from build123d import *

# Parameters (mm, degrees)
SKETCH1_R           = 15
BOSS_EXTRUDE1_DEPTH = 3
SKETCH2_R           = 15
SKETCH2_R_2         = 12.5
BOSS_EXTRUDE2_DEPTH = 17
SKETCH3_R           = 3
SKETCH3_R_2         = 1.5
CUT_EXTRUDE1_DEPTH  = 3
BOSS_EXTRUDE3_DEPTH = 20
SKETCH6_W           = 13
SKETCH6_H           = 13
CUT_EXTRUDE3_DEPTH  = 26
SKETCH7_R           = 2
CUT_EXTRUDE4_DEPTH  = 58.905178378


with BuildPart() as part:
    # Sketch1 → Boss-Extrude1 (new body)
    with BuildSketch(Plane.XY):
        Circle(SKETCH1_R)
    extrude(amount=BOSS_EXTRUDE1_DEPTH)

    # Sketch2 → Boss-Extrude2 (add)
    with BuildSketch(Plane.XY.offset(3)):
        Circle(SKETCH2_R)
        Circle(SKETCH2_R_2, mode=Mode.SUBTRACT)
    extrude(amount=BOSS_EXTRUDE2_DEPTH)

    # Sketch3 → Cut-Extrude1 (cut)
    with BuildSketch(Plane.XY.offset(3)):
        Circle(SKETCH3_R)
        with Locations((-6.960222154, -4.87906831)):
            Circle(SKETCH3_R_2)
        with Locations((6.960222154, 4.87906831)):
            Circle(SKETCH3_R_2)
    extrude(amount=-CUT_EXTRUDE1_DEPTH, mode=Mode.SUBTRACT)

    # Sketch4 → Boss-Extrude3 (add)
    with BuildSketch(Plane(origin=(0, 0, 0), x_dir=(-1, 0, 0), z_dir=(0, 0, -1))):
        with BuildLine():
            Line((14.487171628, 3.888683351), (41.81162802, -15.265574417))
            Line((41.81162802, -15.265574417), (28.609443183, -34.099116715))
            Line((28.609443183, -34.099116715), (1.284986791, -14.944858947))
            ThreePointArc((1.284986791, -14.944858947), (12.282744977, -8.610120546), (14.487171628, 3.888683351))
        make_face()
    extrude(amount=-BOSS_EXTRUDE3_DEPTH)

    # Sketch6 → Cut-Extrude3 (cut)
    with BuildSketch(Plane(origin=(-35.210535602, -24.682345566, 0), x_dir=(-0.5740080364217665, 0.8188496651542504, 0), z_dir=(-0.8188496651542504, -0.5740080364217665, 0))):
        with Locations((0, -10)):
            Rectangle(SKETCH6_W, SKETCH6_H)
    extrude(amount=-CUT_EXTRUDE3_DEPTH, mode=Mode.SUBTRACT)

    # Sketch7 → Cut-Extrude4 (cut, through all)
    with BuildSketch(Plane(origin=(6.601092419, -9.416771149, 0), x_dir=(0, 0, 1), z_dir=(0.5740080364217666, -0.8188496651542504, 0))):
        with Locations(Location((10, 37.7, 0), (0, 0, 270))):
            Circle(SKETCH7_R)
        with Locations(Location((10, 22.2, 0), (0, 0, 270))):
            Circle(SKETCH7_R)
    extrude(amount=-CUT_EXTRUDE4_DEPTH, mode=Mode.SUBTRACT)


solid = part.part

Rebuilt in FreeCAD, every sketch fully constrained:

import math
import FreeCAD as App
import Part
import Sketcher
Q = App.Units.Quantity

doc = App.newDocument("Part")
body = doc.addObject("PartDesign::Body", "Body")

sketch1 = body.newObject("Sketcher::SketchObject", "Sketch")
sketch1.AttachmentSupport = (doc.getObject("XY_Plane"), [""])
sketch1.MapMode = "FlatFace"
sketch1.addGeometry(Part.Circle(App.Vector(0, 0, 0), App.Vector(0, 0, 1), 15), False)
sketch1.addConstraint([
    Sketcher.Constraint("Coincident", 0, 3, -1, 1),
    Sketcher.Constraint("Diameter", 0, Q("30 mm")),
])
pad1 = body.newObject("PartDesign::Pad", "Pad")
pad1.Profile = sketch1
pad1.Length = 3

sketch2 = body.newObject("Sketcher::SketchObject", "Sketch001")
sketch2.AttachmentSupport = (doc.getObject("XY_Plane"), [""])
sketch2.MapMode = "FlatFace"
sketch2.AttachmentOffset = App.Placement(App.Vector(0, 0, 3), App.Rotation())
sketch2.addGeometry([
    Part.Circle(App.Vector(0, 0, 0), App.Vector(0, 0, 1), 15),
    Part.Circle(App.Vector(0, 0, 0), App.Vector(0, 0, 1), 12),
], False)
sketch2.addConstraint([
    Sketcher.Constraint("Coincident", 0, 3, -1, 1),
    Sketcher.Constraint("Coincident", 1, 3, -1, 1),
    Sketcher.Constraint("Diameter", 0, Q("30 mm")),
    Sketcher.Constraint("Diameter", 1, Q("25 mm")),
])
pad2 = body.newObject("PartDesign::Pad", "Pad001")
pad2.Profile = sketch2
pad2.Length = 17

sketch3 = body.newObject("Sketcher::SketchObject", "Sketch002")
sketch3.AttachmentSupport = (doc.getObject("XY_Plane"), [""])
sketch3.MapMode = "FlatFace"
sketch3.AttachmentOffset = App.Placement(App.Vector(0, 0, 3), App.Rotation())
sketch3.addGeometry([
    Part.Circle(App.Vector(0, 0, 0), App.Vector(0, 0, 1), 3),
    Part.Circle(App.Vector(-7, -4.9, 0), App.Vector(0, 0, 1), 1.5),
    Part.Circle(App.Vector(7, 4.9, 0), App.Vector(0, 0, 1), 1.5),
], False)
sketch3.addConstraint([
    Sketcher.Constraint("Coincident", 0, 3, -1, 1),
    Sketcher.Constraint("Equal", 1, 2),
    Sketcher.Constraint("Symmetric", 1, 3, 2, 3, -1, 1),
    Sketcher.Constraint("Diameter", 0, Q("6 mm")),
    Sketcher.Constraint("Diameter", 1, Q("3 mm")),
    Sketcher.Constraint("DistanceY", 1, 3, -1, 1, Q("4.879068 mm")),
    Sketcher.Constraint("DistanceX", 1, 3, -1, 1, Q("6.960222 mm")),
])
pocket1 = body.newObject("PartDesign::Pocket", "Pocket")
pocket1.Profile = sketch3
pocket1.Length = 3

sketch4 = body.newObject("Sketcher::SketchObject", "Sketch003")
sketch4.AttachmentSupport = (doc.getObject("XY_Plane"), [""])
sketch4.MapMode = "FlatFace"
sketch4.addGeometry([
    Part.LineSegment(App.Vector(-42, -15, 0), App.Vector(-14, 4, 0)),
    Part.ArcOfCircle(Part.Circle(App.Vector(0, 0, 0), App.Vector(0, 0, 1), 15), math.radians(165), math.radians(265)),
    Part.LineSegment(App.Vector(-1, -15, 0), App.Vector(-29, -34, 0)),
    Part.LineSegment(App.Vector(-29, -34, 0), App.Vector(-42, -15, 0)),
], False)
sketch4.addConstraint([
    Sketcher.Constraint("Coincident", 0, 2, 1, 1),
    Sketcher.Constraint("Coincident", 1, 2, 2, 1),
    Sketcher.Constraint("Coincident", 2, 2, 3, 1),
    Sketcher.Constraint("Coincident", 3, 2, 0, 1),
    Sketcher.Constraint("Coincident", 1, 3, -1, 1),
    Sketcher.Constraint("Parallel", 0, 2),
    Sketcher.Constraint("Perpendicular", 2, 3),
    Sketcher.Constraint("Equal", 0, 2),
    Sketcher.Constraint("Radius", 1, Q("15 mm")),
    Sketcher.Constraint("Distance", 3, Q("23 mm")),
    Sketcher.Constraint("DistanceY", 2, 2, 0, 2, Q("37.9878 mm")),
    Sketcher.Constraint("Distance", 0, Q("33.36932 mm")),
])
pad3 = body.newObject("PartDesign::Pad", "Pad002")
pad3.Profile = sketch4
pad3.Length = 20

sketch5 = body.newObject("Sketcher::SketchObject", "Sketch004")
sketch5.Placement = App.Placement(App.Vector(-35.210536, -24.682346, 0), App.Rotation(App.Vector(-0.574008036, 0.818849665, 0), App.Vector(0, 0, -0.999999999), App.Vector(-0.818849665, -0.574008036, 0), "ZXY"))
sketch5.addGeometry([
    Part.LineSegment(App.Vector(-6, -3, 0), App.Vector(-6, -16, 0)),
    Part.LineSegment(App.Vector(-6, -16, 0), App.Vector(6, -16, 0)),
    Part.LineSegment(App.Vector(6, -16, 0), App.Vector(6, -3, 0)),
    Part.LineSegment(App.Vector(6, -3, 0), App.Vector(-6, -3, 0)),
], False)
sketch5.addConstraint([
    Sketcher.Constraint("Coincident", 0, 2, 1, 1),
    Sketcher.Constraint("Coincident", 1, 2, 2, 1),
    Sketcher.Constraint("Coincident", 2, 2, 3, 1),
    Sketcher.Constraint("Coincident", 3, 2, 0, 1),
    Sketcher.Constraint("Vertical", 0),
    Sketcher.Constraint("Horizontal", 1),
    Sketcher.Constraint("Vertical", 2),
    Sketcher.Constraint("Horizontal", 3),
    Sketcher.Constraint("Equal", 3, 0),
    Sketcher.Constraint("DistanceX", 1, 1, 1, 2, Q("13 mm")),
    Sketcher.Constraint("DistanceX", 0, 2, -1, 1, Q("6.5 mm")),
    Sketcher.Constraint("DistanceY", 0, 2, -1, 1, Q("16.5 mm")),
])
pocket2 = body.newObject("PartDesign::Pocket", "Pocket001")
pocket2.Profile = sketch5
pocket2.Length = 26

sketch6 = body.newObject("Sketcher::SketchObject", "Sketch005")
sketch6.Placement = App.Placement(App.Vector(6.601092, -9.416771, 0), App.Rotation(App.Vector(0, 0, 1), App.Vector(-0.818849665, -0.574008036, 0), App.Vector(0.574008036, -0.818849665, 0), "ZXY"))
sketch6.addGeometry([
    Part.Circle(App.Vector(10, 37.7, 0), App.Vector(0, 0, 1), 2),
    Part.Circle(App.Vector(10, 22.2, 0), App.Vector(0, 0, 1), 2),
], False)
sketch6.addConstraint([
    Sketcher.Constraint("Equal", 0, 1),
    Sketcher.Constraint("Vertical", 0, 3, 1, 3),
    Sketcher.Constraint("Diameter", 0, Q("4 mm")),
    Sketcher.Constraint("DistanceX", -1, 1, 0, 3, Q("10 mm")),
    Sketcher.Constraint("DistanceY", -1, 1, 0, 3, Q("37.7 mm")),
    Sketcher.Constraint("DistanceY", -1, 1, 1, 3, Q("22.2 mm")),
])
pocket3 = body.newObject("PartDesign::Pocket", "Pocket002")
pocket3.Profile = sketch6
pocket3.Type = "ThroughAll"

doc.recompute()
